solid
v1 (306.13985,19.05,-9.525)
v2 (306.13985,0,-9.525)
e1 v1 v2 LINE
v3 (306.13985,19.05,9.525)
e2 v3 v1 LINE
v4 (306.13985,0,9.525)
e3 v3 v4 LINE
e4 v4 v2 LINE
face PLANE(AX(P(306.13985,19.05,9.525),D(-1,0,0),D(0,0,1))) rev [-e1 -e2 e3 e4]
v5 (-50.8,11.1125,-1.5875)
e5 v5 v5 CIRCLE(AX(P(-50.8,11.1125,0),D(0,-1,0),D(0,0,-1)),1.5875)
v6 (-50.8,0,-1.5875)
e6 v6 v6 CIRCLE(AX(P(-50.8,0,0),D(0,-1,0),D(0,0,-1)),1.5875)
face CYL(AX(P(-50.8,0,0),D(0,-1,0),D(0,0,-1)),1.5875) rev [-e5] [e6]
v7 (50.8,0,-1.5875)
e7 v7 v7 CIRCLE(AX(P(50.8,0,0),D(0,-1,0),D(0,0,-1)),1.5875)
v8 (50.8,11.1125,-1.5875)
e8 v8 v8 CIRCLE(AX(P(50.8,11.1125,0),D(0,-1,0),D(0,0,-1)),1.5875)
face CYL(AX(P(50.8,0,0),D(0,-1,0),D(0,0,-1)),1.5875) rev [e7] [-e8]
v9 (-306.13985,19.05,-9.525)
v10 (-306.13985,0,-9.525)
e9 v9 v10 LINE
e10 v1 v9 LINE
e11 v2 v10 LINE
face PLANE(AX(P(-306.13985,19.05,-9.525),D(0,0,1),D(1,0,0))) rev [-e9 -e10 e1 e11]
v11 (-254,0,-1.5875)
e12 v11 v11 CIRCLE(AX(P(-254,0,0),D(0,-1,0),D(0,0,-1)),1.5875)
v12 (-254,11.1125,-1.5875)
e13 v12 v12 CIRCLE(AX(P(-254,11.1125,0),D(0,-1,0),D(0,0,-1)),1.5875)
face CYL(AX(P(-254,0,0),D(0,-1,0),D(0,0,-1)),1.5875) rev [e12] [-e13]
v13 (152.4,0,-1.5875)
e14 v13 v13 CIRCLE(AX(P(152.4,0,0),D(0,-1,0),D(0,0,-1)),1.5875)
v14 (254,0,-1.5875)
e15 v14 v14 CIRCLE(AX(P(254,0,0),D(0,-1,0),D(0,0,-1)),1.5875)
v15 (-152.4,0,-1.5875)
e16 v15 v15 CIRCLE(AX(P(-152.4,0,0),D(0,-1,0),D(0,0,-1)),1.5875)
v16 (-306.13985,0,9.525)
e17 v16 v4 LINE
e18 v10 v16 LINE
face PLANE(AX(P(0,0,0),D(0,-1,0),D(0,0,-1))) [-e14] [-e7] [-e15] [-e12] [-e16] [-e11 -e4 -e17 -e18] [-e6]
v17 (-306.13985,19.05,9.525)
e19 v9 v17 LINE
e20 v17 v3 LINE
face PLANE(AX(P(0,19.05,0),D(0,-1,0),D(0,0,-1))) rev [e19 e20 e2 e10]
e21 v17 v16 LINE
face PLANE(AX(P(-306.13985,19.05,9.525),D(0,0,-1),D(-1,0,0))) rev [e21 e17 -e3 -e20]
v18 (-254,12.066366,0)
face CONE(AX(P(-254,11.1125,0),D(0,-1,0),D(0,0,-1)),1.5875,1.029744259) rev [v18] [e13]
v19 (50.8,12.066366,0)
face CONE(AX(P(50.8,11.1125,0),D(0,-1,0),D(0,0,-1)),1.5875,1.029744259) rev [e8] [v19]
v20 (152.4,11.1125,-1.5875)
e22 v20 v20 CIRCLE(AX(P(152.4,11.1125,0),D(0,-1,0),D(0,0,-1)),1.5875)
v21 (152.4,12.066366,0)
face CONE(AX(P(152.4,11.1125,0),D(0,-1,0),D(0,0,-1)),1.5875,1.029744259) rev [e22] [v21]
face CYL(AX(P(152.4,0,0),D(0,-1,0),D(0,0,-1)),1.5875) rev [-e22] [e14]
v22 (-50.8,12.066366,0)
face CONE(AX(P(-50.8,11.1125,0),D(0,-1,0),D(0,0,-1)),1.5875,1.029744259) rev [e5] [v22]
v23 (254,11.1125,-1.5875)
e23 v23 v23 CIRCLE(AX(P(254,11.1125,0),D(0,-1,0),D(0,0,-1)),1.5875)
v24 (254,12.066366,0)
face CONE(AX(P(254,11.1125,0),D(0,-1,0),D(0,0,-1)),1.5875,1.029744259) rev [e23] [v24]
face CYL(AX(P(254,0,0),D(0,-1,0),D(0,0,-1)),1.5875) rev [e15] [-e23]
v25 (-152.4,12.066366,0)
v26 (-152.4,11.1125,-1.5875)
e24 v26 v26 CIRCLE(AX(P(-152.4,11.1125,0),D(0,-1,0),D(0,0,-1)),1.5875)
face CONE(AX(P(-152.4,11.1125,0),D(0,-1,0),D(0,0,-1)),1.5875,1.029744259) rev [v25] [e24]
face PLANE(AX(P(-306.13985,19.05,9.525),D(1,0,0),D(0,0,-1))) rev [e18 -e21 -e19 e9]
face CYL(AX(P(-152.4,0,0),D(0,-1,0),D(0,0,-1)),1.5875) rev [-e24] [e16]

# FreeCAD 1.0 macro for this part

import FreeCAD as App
import Part
import Sketcher

V = App.Vector
Q = App.Units.Quantity


def add_polygon(sketch, points):
    """Adds a closed chain of lines whose ends are joined by coincident constraints."""
    first, n = sketch.GeometryCount, len(points)
    for a, b in zip(points, points[1:] + points[:1]):
        sketch.addGeometry(Part.LineSegment(App.Vector(*a, 0), App.Vector(*b, 0)), False)
    for i in range(n):
        sketch.addConstraint(Sketcher.Constraint("Coincident", first + i, 2, first + (i + 1) % n, 1))

doc = App.newDocument("Part")
body = doc.addObject("PartDesign::Body", "Body")

# Sketch on XZ plane
sketch1 = doc.addObject("Sketcher::SketchObject", "Sketch")
body.addObject(sketch1)
sketch1.AttachmentSupport = (doc.XZ_Plane, [""])
sketch1.MapMode = "FlatFace"
add_polygon(sketch1, [(-306.13985, -9.525), (-306.13985, 9.525), (306.13985, 9.525), (306.13985, -9.525)])  # lines 0-3
sketch1.addConstraint(Sketcher.Constraint("Vertical", 0))
sketch1.addConstraint(Sketcher.Constraint("Horizontal", 1))
sketch1.addConstraint(Sketcher.Constraint("Vertical", 2))
sketch1.addConstraint(Sketcher.Constraint("Horizontal", 3))
sketch1.addConstraint(Sketcher.Constraint("Symmetric", 0, 2, 2, 2, -1, 1))
sketch1.addConstraint(Sketcher.Constraint("DistanceY", 0, 1, 0, 2, Q("0.75 in")))
sketch1.addConstraint(Sketcher.Constraint("DistanceX", 1, 1, 1, 2, Q("24.1055 in")))
pad1 = doc.addObject("PartDesign::Pad", "Pad")
body.addObject(pad1)
pad1.Profile = sketch1
pad1.Length = Q("0.75 in")
pad1.Reversed = True

# Sketch on XZ plane
sketch2 = doc.addObject("Sketcher::SketchObject", "Sketch001")
body.addObject(sketch2)
sketch2.AttachmentSupport = (doc.XZ_Plane, [""])
sketch2.MapMode = "FlatFace"
sketch2.addGeometry(Part.Circle(V(-254, 0, 0), V(0, 0, 1), 1.5875), False)
sketch2.addGeometry(Part.Circle(V(-152.4, 0, 0), V(0, 0, 1), 1.5875), False)
sketch2.addGeometry(Part.Circle(V(-50.8, 0, 0), V(0, 0, 1), 1.5875), False)
sketch2.addGeometry(Part.Circle(V(50.8, 0, 0), V(0, 0, 1), 1.5875), False)
sketch2.addGeometry(Part.Circle(V(152.4, 0, 0), V(0, 0, 1), 1.5875), False)
sketch2.addGeometry(Part.Circle(V(254, 0, 0), V(0, 0, 1), 1.5875), False)
sketch2.addConstraint(Sketcher.Constraint("Equal", 0, 1))
sketch2.addConstraint(Sketcher.Constraint("Equal", 1, 2))
sketch2.addConstraint(Sketcher.Constraint("Equal", 2, 3))
sketch2.addConstraint(Sketcher.Constraint("Equal", 3, 4))
sketch2.addConstraint(Sketcher.Constraint("Equal", 4, 5))
sketch2.addConstraint(Sketcher.Constraint("Symmetric", 2, 3, 3, 3, -1, 1))
sketch2.addConstraint(Sketcher.Constraint("Symmetric", 1, 3, 4, 3, -1, 1))
sketch2.addConstraint(Sketcher.Constraint("Symmetric", 0, 3, 5, 3, -1, 1))
sketch2.addConstraint(Sketcher.Constraint("PointOnObject", 0, 3, -1))
sketch2.addConstraint(Sketcher.Constraint("PointOnObject", 1, 3, -1))
sketch2.addConstraint(Sketcher.Constraint("PointOnObject", 2, 3, -1))
sketch2.addConstraint(Sketcher.Constraint("Diameter", 0, Q("0.125 in")))
sketch2.addConstraint(Sketcher.Constraint("DistanceX", 0, 3, -1, 1, Q("10 in")))
sketch2.addConstraint(Sketcher.Constraint("DistanceX", 1, 3, -1, 1, Q("6 in")))
sketch2.addConstraint(Sketcher.Constraint("DistanceX", 2, 3, -1, 1, Q("2 in")))
doc.recompute()
hole = doc.addObject("PartDesign::Hole", "Hole")
body.addObject(hole)
hole.Profile = sketch2
hole.ThreadType = "None"
hole.Diameter = Q("0.125 in")
hole.DepthType = "Dimension"
hole.Depth = Q("0.4375 in")
hole.DrillPoint = "Angled"
hole.DrillPointAngle = 118

doc.recompute()
